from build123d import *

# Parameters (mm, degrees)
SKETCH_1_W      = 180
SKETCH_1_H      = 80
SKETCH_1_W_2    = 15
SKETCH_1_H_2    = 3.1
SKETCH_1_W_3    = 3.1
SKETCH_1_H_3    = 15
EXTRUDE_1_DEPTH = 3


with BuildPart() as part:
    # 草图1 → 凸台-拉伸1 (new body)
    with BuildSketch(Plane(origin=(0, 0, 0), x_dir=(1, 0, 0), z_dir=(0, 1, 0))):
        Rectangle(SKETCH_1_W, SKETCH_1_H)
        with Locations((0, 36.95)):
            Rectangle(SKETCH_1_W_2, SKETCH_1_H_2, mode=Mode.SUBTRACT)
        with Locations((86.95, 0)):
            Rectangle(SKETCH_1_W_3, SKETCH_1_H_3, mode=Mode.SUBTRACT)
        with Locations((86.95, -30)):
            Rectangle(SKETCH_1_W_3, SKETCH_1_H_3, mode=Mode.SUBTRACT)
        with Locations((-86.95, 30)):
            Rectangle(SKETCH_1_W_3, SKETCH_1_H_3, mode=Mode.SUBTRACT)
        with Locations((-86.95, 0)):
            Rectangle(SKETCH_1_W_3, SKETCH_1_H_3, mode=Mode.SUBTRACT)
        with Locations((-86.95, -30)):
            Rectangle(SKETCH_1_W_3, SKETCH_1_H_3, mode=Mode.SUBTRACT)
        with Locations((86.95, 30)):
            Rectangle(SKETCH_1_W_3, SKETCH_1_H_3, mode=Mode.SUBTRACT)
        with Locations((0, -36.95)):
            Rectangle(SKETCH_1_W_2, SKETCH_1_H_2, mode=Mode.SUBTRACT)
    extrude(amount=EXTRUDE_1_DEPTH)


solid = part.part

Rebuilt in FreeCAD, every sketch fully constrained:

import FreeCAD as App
import Part
import Sketcher
Q = App.Units.Quantity


def add_polygon(sketch, points):
    """Adds a closed chain of lines whose ends are joined by coincident constraints."""
    first, n = sketch.GeometryCount, len(points)
    for a, b in zip(points, points[1:] + points[:1]):
        sketch.addGeometry(Part.LineSegment(App.Vector(*a, 0), App.Vector(*b, 0)), False)
    for i in range(n):
        sketch.addConstraint(Sketcher.Constraint("Coincident", first + i, 2, first + (i + 1) % n, 1))

doc = App.newDocument("Part")
params = doc.addObject("Spreadsheet::Sheet", "Params")
for row, (alias, value) in enumerate([
    ("sketch1_width", "180 mm"),
    ("sketch1_width2", "15 mm"),
    ("sketch1_height", "80 mm"),
    ("sketch1_width3", "3.1 mm"),
    ("pad1_length", "3 mm"),
], start=1):
    params.set(f"A{row}", alias)
    params.set(f"B{row}", "=" + value)
    params.setAlias(f"B{row}", alias)

body = doc.addObject("PartDesign::Body", "Body")

sketch1 = doc.addObject("Sketcher::SketchObject", "Sketch")
body.addObject(sketch1)
sketch1.AttachmentSupport = (doc.XZ_Plane, [""])
sketch1.MapMode = "FlatFace"
add_polygon(sketch1, [(-90, -40), (-90, 40), (90, 40), (90, -40)])
add_polygon(sketch1, [(-85.4, 37.5), (-88.5, 37.5), (-88.5, 22.5), (-85.4, 22.5)])
add_polygon(sketch1, [(7.5, 38.5), (-7.5, 38.5), (-7.5, 35.4), (7.5, 35.4)])
add_polygon(sketch1, [(88.5, 37.5), (85.4, 37.5), (85.4, 22.5), (88.5, 22.5)])
add_polygon(sketch1, [(-85.4, 7.5), (-88.5, 7.5), (-88.5, -7.5), (-85.4, -7.5)])
add_polygon(sketch1, [(-85.4, -22.5), (-88.5, -22.5), (-88.5, -37.5), (-85.4, -37.5)])
add_polygon(sketch1, [(88.5, 7.5), (85.4, 7.5), (85.4, -7.5), (88.5, -7.5)])
add_polygon(sketch1, [(7.5, -35.4), (-7.5, -35.4), (-7.5, -38.5), (7.5, -38.5)])
add_polygon(sketch1, [(88.5, -22.5), (85.4, -22.5), (85.4, -37.5), (88.5, -37.5)])
sketch1.addConstraint([
    Sketcher.Constraint("Vertical", 0),
    Sketcher.Constraint("Horizontal", 1),
    Sketcher.Constraint("Vertical", 2),
    Sketcher.Constraint("Horizontal", 3),
    Sketcher.Constraint("Horizontal", 4),
    Sketcher.Constraint("Vertical", 5),
    Sketcher.Constraint("Horizontal", 6),
    Sketcher.Constraint("Vertical", 7),
    Sketcher.Constraint("Horizontal", 8),
    Sketcher.Constraint("Vertical", 9),
    Sketcher.Constraint("Horizontal", 10),
    Sketcher.Constraint("Vertical", 11),
    Sketcher.Constraint("Horizontal", 12),
    Sketcher.Constraint("Vertical", 13),
    Sketcher.Constraint("Horizontal", 14),
    Sketcher.Constraint("Vertical", 15),
    Sketcher.Constraint("Horizontal", 16),
    Sketcher.Constraint("Vertical", 17),
    Sketcher.Constraint("Horizontal", 18),
    Sketcher.Constraint("Vertical", 19),
    Sketcher.Constraint("Horizontal", 20),
    Sketcher.Constraint("Vertical", 21),
    Sketcher.Constraint("Horizontal", 22),
    Sketcher.Constraint("Vertical", 23),
    Sketcher.Constraint("Horizontal", 24),
    Sketcher.Constraint("Vertical", 25),
    Sketcher.Constraint("Horizontal", 26),
    Sketcher.Constraint("Vertical", 27),
    Sketcher.Constraint("Horizontal", 28),
    Sketcher.Constraint("Vertical", 29),
    Sketcher.Constraint("Horizontal", 30),
    Sketcher.Constraint("Vertical", 31),
    Sketcher.Constraint("Horizontal", 32),
    Sketcher.Constraint("Vertical", 33),
    Sketcher.Constraint("Horizontal", 34),
    Sketcher.Constraint("Vertical", 35),
    Sketcher.Constraint("Symmetric", 0, 2, 2, 2, -1, 1),
    Sketcher.Constraint("Symmetric", 14, 2, 20, 2, -1, 1),
    Sketcher.Constraint("Symmetric", 12, 2, 22, 2, -1, 1),
    Sketcher.Constraint("Symmetric", 18, 2, 24, 2, -1, 1),
    Sketcher.Constraint("Symmetric", 16, 2, 26, 2, -1, 1),
    Sketcher.Constraint("Symmetric", 10, 2, 28, 2, -1, 1),
    Sketcher.Constraint("Symmetric", 8, 2, 30, 2, -1, 1),
    Sketcher.Constraint("Symmetric", 6, 2, 32, 2, -1, 1),
    Sketcher.Constraint("Symmetric", 4, 2, 34, 2, -1, 1),
    Sketcher.Constraint("Symmetric", 7, 2, 12, 2, -2),
    Sketcher.Constraint("Symmetric", 5, 2, 14, 2, -2),
    Sketcher.Constraint("Horizontal", 19, 2, 24, 2),
    Sketcher.Constraint("Vertical", 5, 2, 16, 2),
    Sketcher.Constraint("Vertical", 7, 2, 18, 2),
    Sketcher.Constraint("Vertical", 9, 2, 28, 2),
    Sketcher.Constraint("Equal", 30, 5),
    Sketcher.Constraint("Equal", 34, 9),
    Sketcher.Constraint("Equal", 15, 17),
    Sketcher.Constraint("DistanceX", 1, 1, 1, 2, Q("180 mm")),
    Sketcher.Constraint("DistanceX", 8, 2, 8, 1, Q("15 mm")),
    Sketcher.Constraint("DistanceY", 0, 1, 0, 2, Q("80 mm")),
    Sketcher.Constraint("DistanceX", 4, 2, 4, 1, Q("3.1 mm")),
    Sketcher.Constraint("DistanceY", 7, 2, 8, 2, Q("1 mm")),
    Sketcher.Constraint("DistanceX", 4, 2, 8, 2, Q("81 mm")),
    Sketcher.Constraint("DistanceY", 16, 2, 5, 2, Q("15 mm")),
])
sketch1.setExpression("Constraints[90]", "Params.sketch1_width")
sketch1.setExpression("Constraints[91]", "Params.sketch1_width2")
sketch1.setExpression("Constraints[92]", "Params.sketch1_height")
sketch1.setExpression("Constraints[93]", "Params.sketch1_width3")
pad1 = doc.addObject("PartDesign::Pad", "Pad")
body.addObject(pad1)
pad1.Profile = sketch1
pad1.setExpression("Length", "Params.pad1_length")
pad1.Reversed = True

doc.recompute()
